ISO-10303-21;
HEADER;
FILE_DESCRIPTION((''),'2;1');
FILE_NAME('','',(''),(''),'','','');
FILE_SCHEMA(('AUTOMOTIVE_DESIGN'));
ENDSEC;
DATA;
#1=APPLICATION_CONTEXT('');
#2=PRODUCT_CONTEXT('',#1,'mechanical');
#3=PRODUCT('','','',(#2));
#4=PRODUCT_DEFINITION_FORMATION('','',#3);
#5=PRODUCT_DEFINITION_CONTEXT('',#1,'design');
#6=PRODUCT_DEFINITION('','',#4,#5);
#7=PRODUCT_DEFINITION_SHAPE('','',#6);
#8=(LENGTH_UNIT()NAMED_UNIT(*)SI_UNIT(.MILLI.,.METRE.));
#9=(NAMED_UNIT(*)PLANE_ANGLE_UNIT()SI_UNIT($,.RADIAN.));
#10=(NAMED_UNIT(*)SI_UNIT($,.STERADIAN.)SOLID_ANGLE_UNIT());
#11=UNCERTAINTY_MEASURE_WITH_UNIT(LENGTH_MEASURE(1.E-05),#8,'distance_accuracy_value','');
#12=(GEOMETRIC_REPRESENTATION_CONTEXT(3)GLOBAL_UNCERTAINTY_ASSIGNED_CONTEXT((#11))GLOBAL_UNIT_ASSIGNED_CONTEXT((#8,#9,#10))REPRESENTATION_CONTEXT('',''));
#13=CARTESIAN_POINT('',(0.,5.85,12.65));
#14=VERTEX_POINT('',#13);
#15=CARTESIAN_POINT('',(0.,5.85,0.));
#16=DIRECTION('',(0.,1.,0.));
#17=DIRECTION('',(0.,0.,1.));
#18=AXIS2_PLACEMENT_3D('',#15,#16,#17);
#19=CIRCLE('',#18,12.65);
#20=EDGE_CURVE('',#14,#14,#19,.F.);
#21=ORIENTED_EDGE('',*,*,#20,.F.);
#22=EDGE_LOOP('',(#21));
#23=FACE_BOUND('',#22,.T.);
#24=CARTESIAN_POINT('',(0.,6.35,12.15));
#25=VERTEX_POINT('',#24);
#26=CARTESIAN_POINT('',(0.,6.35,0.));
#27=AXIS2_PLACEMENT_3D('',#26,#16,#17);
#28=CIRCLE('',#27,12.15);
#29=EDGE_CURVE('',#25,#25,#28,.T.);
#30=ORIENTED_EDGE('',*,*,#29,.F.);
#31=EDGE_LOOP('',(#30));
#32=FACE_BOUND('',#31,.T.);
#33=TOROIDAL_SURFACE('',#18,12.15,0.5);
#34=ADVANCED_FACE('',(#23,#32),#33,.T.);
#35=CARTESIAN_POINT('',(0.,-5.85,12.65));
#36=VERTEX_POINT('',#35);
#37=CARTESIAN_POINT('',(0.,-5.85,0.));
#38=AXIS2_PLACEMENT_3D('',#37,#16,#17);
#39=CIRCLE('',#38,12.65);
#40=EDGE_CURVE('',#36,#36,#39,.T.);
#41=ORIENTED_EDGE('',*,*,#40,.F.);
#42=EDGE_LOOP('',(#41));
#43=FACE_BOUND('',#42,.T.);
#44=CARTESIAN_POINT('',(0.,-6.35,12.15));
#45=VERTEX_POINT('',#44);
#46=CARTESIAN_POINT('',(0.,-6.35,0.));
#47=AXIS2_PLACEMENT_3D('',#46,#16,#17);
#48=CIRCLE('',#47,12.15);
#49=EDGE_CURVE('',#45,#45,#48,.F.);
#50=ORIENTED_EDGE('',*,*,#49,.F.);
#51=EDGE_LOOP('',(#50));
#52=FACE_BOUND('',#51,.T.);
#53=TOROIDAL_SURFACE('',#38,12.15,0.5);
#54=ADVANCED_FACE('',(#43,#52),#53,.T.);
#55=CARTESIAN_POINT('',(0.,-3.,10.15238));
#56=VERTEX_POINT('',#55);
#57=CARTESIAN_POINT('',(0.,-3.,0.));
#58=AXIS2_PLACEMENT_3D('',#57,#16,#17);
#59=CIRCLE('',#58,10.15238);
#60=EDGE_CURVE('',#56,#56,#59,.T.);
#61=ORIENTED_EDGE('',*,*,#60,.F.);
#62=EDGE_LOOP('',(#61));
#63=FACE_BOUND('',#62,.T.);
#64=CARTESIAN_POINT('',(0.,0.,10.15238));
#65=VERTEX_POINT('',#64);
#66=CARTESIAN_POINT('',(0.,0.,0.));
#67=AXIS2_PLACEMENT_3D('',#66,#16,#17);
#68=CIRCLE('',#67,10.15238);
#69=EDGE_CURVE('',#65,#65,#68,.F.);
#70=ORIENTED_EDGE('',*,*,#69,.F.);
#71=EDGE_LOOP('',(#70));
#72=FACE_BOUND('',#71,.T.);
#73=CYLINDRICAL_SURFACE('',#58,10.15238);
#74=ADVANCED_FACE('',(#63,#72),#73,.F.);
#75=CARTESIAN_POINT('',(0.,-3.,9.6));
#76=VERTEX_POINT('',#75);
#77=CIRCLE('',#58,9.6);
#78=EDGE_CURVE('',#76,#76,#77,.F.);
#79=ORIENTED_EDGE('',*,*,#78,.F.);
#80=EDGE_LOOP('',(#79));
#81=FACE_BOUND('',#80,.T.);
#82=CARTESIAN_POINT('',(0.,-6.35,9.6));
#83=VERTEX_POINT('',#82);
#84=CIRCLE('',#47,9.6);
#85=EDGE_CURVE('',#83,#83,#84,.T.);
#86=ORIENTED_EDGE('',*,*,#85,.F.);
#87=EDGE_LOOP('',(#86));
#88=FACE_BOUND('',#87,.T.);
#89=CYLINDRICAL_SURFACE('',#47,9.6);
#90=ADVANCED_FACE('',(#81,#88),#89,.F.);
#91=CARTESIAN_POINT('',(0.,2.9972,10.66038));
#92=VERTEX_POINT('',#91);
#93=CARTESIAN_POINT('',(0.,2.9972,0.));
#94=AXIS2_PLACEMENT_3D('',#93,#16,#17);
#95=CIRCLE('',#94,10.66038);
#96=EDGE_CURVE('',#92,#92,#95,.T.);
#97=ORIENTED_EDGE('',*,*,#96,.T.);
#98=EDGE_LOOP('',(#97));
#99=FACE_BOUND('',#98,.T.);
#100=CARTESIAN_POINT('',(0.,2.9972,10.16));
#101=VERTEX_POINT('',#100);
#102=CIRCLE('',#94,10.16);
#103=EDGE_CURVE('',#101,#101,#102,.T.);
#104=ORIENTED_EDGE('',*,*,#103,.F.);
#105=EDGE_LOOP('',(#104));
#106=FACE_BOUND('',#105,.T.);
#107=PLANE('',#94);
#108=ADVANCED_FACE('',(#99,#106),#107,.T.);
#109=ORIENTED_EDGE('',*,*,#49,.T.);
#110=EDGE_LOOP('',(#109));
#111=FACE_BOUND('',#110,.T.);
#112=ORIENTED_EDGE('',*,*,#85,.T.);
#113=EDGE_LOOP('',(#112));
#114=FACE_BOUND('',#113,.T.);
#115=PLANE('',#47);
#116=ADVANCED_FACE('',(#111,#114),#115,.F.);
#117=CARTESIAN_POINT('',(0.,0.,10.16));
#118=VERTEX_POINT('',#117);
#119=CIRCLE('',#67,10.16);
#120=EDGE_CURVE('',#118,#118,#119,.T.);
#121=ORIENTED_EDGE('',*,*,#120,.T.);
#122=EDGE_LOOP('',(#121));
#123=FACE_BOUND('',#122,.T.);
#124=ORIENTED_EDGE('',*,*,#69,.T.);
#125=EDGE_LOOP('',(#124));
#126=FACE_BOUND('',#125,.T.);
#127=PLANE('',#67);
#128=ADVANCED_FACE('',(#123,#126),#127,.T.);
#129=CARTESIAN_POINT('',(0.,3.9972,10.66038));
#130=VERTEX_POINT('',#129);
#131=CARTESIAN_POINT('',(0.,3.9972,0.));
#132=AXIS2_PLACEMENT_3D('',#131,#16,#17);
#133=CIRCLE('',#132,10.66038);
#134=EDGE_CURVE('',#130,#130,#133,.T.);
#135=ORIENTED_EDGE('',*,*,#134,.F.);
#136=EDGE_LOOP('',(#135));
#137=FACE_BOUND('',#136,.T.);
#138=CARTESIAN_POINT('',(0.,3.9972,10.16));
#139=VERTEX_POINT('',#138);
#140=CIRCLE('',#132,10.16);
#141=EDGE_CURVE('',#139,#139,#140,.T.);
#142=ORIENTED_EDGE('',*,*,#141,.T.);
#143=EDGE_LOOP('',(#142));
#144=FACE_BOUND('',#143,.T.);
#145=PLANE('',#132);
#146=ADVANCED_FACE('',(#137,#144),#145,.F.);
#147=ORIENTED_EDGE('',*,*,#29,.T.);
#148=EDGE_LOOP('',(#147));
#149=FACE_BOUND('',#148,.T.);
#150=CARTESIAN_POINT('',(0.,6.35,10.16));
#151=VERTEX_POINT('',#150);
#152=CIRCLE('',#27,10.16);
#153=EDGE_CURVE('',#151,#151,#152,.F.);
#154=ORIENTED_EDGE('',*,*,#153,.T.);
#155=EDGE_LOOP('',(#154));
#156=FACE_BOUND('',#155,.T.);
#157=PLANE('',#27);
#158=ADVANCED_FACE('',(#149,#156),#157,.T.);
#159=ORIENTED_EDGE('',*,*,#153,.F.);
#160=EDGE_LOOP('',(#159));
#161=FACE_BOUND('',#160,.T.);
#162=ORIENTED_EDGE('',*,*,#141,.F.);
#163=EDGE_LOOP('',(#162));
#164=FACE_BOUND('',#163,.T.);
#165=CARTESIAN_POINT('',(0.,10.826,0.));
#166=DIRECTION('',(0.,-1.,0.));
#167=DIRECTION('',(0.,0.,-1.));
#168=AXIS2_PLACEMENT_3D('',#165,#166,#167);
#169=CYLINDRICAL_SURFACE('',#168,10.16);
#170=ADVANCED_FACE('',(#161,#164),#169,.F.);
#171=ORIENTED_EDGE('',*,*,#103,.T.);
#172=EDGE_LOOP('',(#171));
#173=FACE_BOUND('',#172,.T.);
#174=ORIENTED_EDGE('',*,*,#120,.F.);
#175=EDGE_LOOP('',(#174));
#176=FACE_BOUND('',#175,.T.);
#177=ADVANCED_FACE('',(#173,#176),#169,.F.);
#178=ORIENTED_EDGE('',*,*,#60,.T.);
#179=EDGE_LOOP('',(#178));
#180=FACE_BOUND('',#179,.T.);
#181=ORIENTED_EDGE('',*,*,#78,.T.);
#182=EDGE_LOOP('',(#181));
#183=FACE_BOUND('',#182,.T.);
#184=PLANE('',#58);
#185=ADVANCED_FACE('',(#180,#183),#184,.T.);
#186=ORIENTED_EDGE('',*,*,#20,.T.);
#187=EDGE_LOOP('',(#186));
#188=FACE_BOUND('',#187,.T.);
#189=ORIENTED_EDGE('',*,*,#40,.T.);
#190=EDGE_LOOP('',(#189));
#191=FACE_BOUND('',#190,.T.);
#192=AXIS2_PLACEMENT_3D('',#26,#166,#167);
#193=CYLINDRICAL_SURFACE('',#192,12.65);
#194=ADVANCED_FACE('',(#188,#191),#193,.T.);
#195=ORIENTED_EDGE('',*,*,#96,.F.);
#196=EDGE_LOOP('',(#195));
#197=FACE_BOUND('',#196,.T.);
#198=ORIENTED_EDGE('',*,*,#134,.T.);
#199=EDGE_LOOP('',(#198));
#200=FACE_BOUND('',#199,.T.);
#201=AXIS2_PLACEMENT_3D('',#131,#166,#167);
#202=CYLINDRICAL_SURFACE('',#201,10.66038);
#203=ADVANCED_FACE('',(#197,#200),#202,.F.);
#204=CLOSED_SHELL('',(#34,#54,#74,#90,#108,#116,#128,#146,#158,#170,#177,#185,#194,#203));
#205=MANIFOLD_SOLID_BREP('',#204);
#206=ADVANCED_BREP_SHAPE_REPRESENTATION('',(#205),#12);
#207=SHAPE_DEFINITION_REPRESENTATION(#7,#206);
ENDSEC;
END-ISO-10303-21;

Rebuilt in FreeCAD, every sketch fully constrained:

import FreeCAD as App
import Part
import Sketcher
from FreeCAD import Vector
Q = App.Units.Quantity


def edges_at(feature, points):
    """Names of the edges that pass closest to the given points."""
    edges = feature.Shape.Edges
    near = lambda p: min(range(len(edges)), key=lambda i: edges[i].distToShape(Part.Vertex(*p))[0])
    return sorted({f"Edge{near(p) + 1}" for p in points})

doc = App.newDocument("Part")
body = doc.addObject("PartDesign::Body", "Body")

# Sketch on XZ plane
sketch1 = doc.addObject("Sketcher::SketchObject", "Sketch")
body.addObject(sketch1)
sketch1.AttachmentSupport = (doc.XZ_Plane, [""])
sketch1.MapMode = "FlatFace"
sketch1.addGeometry(Part.Circle(Vector(0, 0, 0), Vector(0, 0, 1), 13), False)
sketch1.addConstraint([
    Sketcher.Constraint("Coincident", 0, 3, -1, 1),
    Sketcher.Constraint("Diameter", 0, Q("25.3 mm")),
])
pad1 = doc.addObject("PartDesign::Pad", "Pad")
body.addObject(pad1)
pad1.Profile = sketch1
pad1.Length = 12.7
pad1.Midplane = True

# Sketch on XZ plane
sketch2 = doc.addObject("Sketcher::SketchObject", "Sketch001")
body.addObject(sketch2)
sketch2.AttachmentSupport = (doc.XZ_Plane, [""])
sketch2.MapMode = "FlatFace"
sketch2.addGeometry(Part.Circle(Vector(0, 0, 0), Vector(0, 0, 1), 10), False)
sketch2.addConstraint([
    Sketcher.Constraint("Coincident", 0, 3, -1, 1),
    Sketcher.Constraint("Diameter", 0, Q("19.2 mm")),
])
pocket1 = doc.addObject("PartDesign::Pocket", "Pocket")
body.addObject(pocket1)
pocket1.Profile = sketch2
pocket1.Type = "ThroughAll"
pocket1.Midplane = True

# Sketch on XZ plane
sketch3 = doc.addObject("Sketcher::SketchObject", "Sketch002")
body.addObject(sketch3)
sketch3.AttachmentSupport = (doc.XZ_Plane, [""])
sketch3.MapMode = "FlatFace"
sketch3.addGeometry(Part.Circle(Vector(0, 0, 0), Vector(0, 0, 1), 10), False)
sketch3.addConstraint([
    Sketcher.Constraint("Coincident", 0, 3, -1, 1),
    Sketcher.Constraint("Diameter", 0, Q("20.30476 mm")),
])
pocket2 = doc.addObject("PartDesign::Pocket", "Pocket001")
body.addObject(pocket2)
pocket2.Profile = sketch3
pocket2.Length = 6
pocket2.Midplane = True

# Sketch on XZ plane
sketch4 = doc.addObject("Sketcher::SketchObject", "Sketch003")
body.addObject(sketch4)
sketch4.AttachmentSupport = (doc.XZ_Plane, [""])
sketch4.MapMode = "FlatFace"
sketch4.addGeometry(Part.Circle(Vector(0, 0, 0), Vector(0, 0, 1), 10), False)
sketch4.addConstraint([
    Sketcher.Constraint("Coincident", 0, 3, -1, 1),
    Sketcher.Constraint("Diameter", 0, Q("20.32 mm")),
])
pocket3 = doc.addObject("PartDesign::Pocket", "Pocket002")
body.addObject(pocket3)
pocket3.Profile = sketch4
pocket3.Length = 10.826

# Sketch on XZ plane
sketch5 = doc.addObject("Sketcher::SketchObject", "Sketch004")
body.addObject(sketch5)
sketch5.AttachmentSupport = (doc.XZ_Plane, [""])
sketch5.MapMode = "FlatFace"
sketch5.AttachmentOffset = App.Placement(Vector(0, 0, -2.9972), App.Rotation())
sketch5.addGeometry(Part.Circle(Vector(0, 0, 0), Vector(0, 0, 1), 11), False)
sketch5.addConstraint([
    Sketcher.Constraint("Coincident", 0, 3, -1, 1),
    Sketcher.Constraint("Diameter", 0, Q("21.32076 mm")),
])
pocket4 = doc.addObject("PartDesign::Pocket", "Pocket003")
body.addObject(pocket4)
pocket4.Profile = sketch5
pocket4.Length = 1
doc.recompute()

fillet = doc.addObject("PartDesign::Fillet", "Fillet")
body.addObject(fillet)
fillet.Base = (pocket4, edges_at(pocket4, [(-12.65, -6.35, 0), (-12.65, 6.35, 0)]))
fillet.Radius = 0.5

doc.recompute()
